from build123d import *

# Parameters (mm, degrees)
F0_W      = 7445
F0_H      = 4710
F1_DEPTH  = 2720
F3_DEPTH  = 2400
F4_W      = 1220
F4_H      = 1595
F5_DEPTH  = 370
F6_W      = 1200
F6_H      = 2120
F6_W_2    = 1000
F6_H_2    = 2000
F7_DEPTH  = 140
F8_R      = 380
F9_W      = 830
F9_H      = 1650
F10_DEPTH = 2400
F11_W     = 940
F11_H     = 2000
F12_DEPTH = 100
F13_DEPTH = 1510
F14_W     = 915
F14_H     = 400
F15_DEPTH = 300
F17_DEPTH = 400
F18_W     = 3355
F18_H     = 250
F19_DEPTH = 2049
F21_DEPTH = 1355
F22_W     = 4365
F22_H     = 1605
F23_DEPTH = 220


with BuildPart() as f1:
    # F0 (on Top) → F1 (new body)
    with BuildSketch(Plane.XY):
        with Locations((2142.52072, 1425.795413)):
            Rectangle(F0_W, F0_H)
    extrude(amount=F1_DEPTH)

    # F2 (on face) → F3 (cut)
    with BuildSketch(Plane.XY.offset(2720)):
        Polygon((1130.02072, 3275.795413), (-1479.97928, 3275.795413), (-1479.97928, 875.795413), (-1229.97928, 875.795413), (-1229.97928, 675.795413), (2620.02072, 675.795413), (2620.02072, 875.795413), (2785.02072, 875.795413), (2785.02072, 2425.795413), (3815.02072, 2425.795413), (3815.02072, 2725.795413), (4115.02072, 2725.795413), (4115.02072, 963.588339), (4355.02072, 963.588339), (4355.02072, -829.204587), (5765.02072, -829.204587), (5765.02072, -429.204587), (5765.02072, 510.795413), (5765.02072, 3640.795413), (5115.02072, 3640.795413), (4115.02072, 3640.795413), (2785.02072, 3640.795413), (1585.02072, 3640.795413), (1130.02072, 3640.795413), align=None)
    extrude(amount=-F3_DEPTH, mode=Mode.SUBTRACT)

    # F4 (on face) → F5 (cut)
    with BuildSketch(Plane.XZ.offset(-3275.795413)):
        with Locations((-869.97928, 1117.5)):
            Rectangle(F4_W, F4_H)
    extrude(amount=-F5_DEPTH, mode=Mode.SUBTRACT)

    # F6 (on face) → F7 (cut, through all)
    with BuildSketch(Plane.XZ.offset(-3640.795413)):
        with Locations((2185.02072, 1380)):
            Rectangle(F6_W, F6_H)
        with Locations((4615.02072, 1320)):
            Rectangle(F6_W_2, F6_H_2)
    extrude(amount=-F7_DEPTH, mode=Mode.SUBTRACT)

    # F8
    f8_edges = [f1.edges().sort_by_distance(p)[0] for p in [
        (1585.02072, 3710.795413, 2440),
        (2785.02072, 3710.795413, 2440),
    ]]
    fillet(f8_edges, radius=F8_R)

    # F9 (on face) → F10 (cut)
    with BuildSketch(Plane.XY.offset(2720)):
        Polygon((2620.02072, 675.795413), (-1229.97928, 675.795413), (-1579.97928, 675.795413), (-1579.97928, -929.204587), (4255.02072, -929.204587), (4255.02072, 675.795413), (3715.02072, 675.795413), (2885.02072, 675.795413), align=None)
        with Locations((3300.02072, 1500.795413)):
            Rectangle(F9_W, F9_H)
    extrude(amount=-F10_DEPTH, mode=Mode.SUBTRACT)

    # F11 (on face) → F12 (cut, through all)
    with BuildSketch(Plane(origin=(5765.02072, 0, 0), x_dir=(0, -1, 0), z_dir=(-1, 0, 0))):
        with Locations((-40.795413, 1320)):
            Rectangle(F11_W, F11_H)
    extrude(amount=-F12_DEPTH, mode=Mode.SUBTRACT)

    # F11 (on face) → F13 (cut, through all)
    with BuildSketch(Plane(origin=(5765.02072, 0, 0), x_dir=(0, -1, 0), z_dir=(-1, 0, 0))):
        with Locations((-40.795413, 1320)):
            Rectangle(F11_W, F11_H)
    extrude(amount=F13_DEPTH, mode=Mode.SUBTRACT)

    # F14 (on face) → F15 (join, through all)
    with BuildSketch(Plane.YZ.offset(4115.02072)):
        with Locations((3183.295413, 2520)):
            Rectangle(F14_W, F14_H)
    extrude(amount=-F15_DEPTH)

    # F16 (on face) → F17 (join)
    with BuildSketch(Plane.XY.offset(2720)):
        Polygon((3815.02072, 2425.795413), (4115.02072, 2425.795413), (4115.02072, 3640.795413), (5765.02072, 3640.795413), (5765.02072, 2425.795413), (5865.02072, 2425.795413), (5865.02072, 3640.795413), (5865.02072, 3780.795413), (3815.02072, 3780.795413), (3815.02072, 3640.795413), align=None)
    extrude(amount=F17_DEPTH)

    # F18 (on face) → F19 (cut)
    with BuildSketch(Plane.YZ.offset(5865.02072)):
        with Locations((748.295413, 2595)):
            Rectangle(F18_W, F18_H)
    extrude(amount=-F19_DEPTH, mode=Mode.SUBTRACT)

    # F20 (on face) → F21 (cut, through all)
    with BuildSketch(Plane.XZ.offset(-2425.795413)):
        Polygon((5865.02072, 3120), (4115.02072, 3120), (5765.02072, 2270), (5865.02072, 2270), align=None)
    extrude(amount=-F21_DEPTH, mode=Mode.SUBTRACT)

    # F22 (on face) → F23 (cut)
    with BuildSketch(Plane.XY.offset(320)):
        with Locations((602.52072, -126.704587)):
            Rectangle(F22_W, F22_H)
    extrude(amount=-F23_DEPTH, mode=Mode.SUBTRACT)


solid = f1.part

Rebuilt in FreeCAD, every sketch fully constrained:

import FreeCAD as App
import Part
import Sketcher
from FreeCAD import Vector


def edges_at(feature, points):
    """Names of the edges that pass closest to the given points."""
    edges = feature.Shape.Edges
    near = lambda p: min(range(len(edges)), key=lambda i: edges[i].distToShape(Part.Vertex(*p))[0])
    return sorted({f"Edge{near(p) + 1}" for p in points})


def add_polygon(sketch, points):
    """Adds a closed chain of lines whose ends are joined by coincident constraints."""
    first, n = sketch.GeometryCount, len(points)
    for a, b in zip(points, points[1:] + points[:1]):
        sketch.addGeometry(Part.LineSegment(App.Vector(*a, 0), App.Vector(*b, 0)), False)
    for i in range(n):
        sketch.addConstraint(Sketcher.Constraint("Coincident", first + i, 2, first + (i + 1) % n, 1))

doc = App.newDocument("Part")
params = doc.addObject("Spreadsheet::Sheet", "Params")
for row, (alias, value) in enumerate([
    ("sketch1_width", "7445 mm"),
    ("sketch1_height", "4710 mm"),
    ("pad1_length", "2720 mm"),
    ("sketch2_width", "2610 mm"),
    ("sketch2_width2", "250 mm"),
    ("sketch2_width3", "3850 mm"),
    ("sketch2_width4", "165 mm"),
    ("sketch2_width5", "1030 mm"),
    ("pocket1_length", "2400 mm"),
    ("sketch3_width", "1220 mm"),
    ("sketch3_height", "1595 mm"),
    ("pocket2_length", "370 mm"),
    ("sketch4_width", "1200 mm"),
    ("sketch4_width2", "1000 mm"),
    ("sketch4_height", "2120 mm"),
    ("sketch4_height2", "2000 mm"),
    ("fillet_radius", "380 mm"),
    ("sketch5_width", "5835 mm"),
    ("sketch5_width2", "540 mm"),
    ("sketch5_width3", "830 mm"),
    ("sketch5_height", "1605 mm"),
    ("sketch5_height2", "1650 mm"),
    ("pocket4_length", "2400 mm"),
    ("sketch6_width", "940 mm"),
    ("sketch6_height", "2000 mm"),
    ("sketch7_width", "940 mm"),
    ("sketch7_height", "2000 mm"),
    ("sketch8_width", "915 mm"),
    ("sketch8_height", "400 mm"),
    ("pad2_length", "300 mm"),
    ("sketch9_width", "300 mm"),
    ("sketch9_width2", "1650 mm"),
    ("sketch9_width3", "100 mm"),
    ("sketch9_height", "1215 mm"),
    ("sketch9_height2", "1355 mm"),
    ("pad3_length", "400 mm"),
    ("sketch10_width", "3355 mm"),
    ("sketch10_height", "250 mm"),
    ("pocket7_length", "2049 mm"),
    ("sketch11_width", "1750 mm"),
    ("sketch11_width2", "100 mm"),
    ("sketch11_height", "850 mm"),
    ("sketch12_width", "4365 mm"),
    ("sketch12_height", "1605 mm"),
    ("pocket9_length", "220 mm"),
], start=1):
    params.set(f"A{row}", alias)
    params.set(f"B{row}", "=" + value)
    params.setAlias(f"B{row}", alias)

body = doc.addObject("PartDesign::Body", "Body")

sketch1 = body.newObject("Sketcher::SketchObject", "Sketch")
sketch1.AttachmentSupport = (doc.getObject("XY_Plane"), [""])
sketch1.MapMode = "FlatFace"
add_polygon(sketch1, [(-1580, 3781), (-1580, -929), (5865, -929), (5865, 3781)])
sketch1.addConstraint([
    Sketcher.Constraint("Vertical", 0),
    Sketcher.Constraint("Horizontal", 1),
    Sketcher.Constraint("Vertical", 2),
    Sketcher.Constraint("Horizontal", 3),
    Sketcher.Constraint("DistanceX", 1, 1, 1, 2, 7445.0),
    Sketcher.Constraint("DistanceY", 0, 2, 0, 1, 4710.0),
    Sketcher.Constraint("DistanceX", 0, 2, -1, 1, 1579.97928),
    Sketcher.Constraint("DistanceY", 0, 2, -1, 1, 929.204587),
])
sketch1.setExpression("Constraints[8]", "Params.sketch1_width")
sketch1.setExpression("Constraints[9]", "Params.sketch1_height")
pad1 = body.newObject("PartDesign::Pad", "Pad")
pad1.Profile = sketch1
pad1.setExpression("Length", "Params.pad1_length")

sketch2 = body.newObject("Sketcher::SketchObject", "Sketch001")
sketch2.AttachmentSupport = (doc.getObject("XY_Plane"), [""])
sketch2.MapMode = "FlatFace"
sketch2.AttachmentOffset = App.Placement(Vector(0, 0, 2720), App.Rotation())
add_polygon(sketch2, [(1130, 3276), (-1480, 3276), (-1480, 876), (-1230, 876), (-1230, 676), (2620, 676), (2620, 876), (2785, 876), (2785, 2426), (3815, 2426), (3815, 2726), (4115, 2726), (4115, 964), (4355, 964), (4355, -829), (5765, -829), (5765, 3641), (1130, 3641)])
sketch2.addConstraint([
    Sketcher.Constraint("Horizontal", 0),
    Sketcher.Constraint("Vertical", 1),
    Sketcher.Constraint("Horizontal", 2),
    Sketcher.Constraint("Vertical", 3),
    Sketcher.Constraint("Horizontal", 4),
    Sketcher.Constraint("Vertical", 5),
    Sketcher.Constraint("Horizontal", 6),
    Sketcher.Constraint("Vertical", 7),
    Sketcher.Constraint("Horizontal", 8),
    Sketcher.Constraint("Vertical", 9),
    Sketcher.Constraint("Horizontal", 10),
    Sketcher.Constraint("Vertical", 11),
    Sketcher.Constraint("Horizontal", 12),
    Sketcher.Constraint("Vertical", 13),
    Sketcher.Constraint("Horizontal", 14),
    Sketcher.Constraint("Vertical", 15),
    Sketcher.Constraint("Horizontal", 16),
    Sketcher.Constraint("Vertical", 17),
    Sketcher.Constraint("Horizontal", 2, 2, 5, 2),
    Sketcher.Constraint("Equal", 10, 9),
    Sketcher.Constraint("DistanceX", 0, 2, 0, 1, 2610.0),
    Sketcher.Constraint("DistanceX", 2, 1, 2, 2, 250.0),
    Sketcher.Constraint("DistanceX", 4, 1, 4, 2, 3850.0),
    Sketcher.Constraint("DistanceX", 6, 1, 6, 2, 165.0),
    Sketcher.Constraint("DistanceX", 8, 1, 8, 2, 1030.0),
    Sketcher.Constraint("DistanceX", 10, 1, 10, 2, 300.0),
    Sketcher.Constraint("DistanceX", 12, 1, 12, 2, 240.0),
    Sketcher.Constraint("DistanceX", 14, 1, 14, 2, 1410.0),
    Sketcher.Constraint("DistanceY", 1, 2, 1, 1, 2400.0),
    Sketcher.Constraint("DistanceY", 3, 2, 3, 1, 200.0),
    Sketcher.Constraint("DistanceY", 7, 1, 7, 2, 1550.0),
    Sketcher.Constraint("DistanceY", 15, 1, 15, 2, 4470.0),
    Sketcher.Constraint("DistanceY", 17, 2, 17, 1, 365.0),
    Sketcher.Constraint("DistanceY", 11, 2, 11, 1, 1762.207074),
    Sketcher.Constraint("DistanceX", 0, 2, -1, 1, 1479.97928),
    Sketcher.Constraint("DistanceY", -1, 1, 11, 2, 963.588339),
])
sketch2.setExpression("Constraints[38]", "Params.sketch2_width")
sketch2.setExpression("Constraints[39]", "Params.sketch2_width2")
sketch2.setExpression("Constraints[40]", "Params.sketch2_width3")
sketch2.setExpression("Constraints[41]", "Params.sketch2_width4")
sketch2.setExpression("Constraints[42]", "Params.sketch2_width5")
pocket1 = body.newObject("PartDesign::Pocket", "Pocket")
pocket1.Profile = sketch2
pocket1.setExpression("Length", "Params.pocket1_length")

sketch3 = body.newObject("Sketcher::SketchObject", "Sketch002")
sketch3.AttachmentSupport = (doc.getObject("XZ_Plane"), [""])
sketch3.MapMode = "FlatFace"
sketch3.AttachmentOffset = App.Placement(Vector(0, 0, -3275.795413), App.Rotation())
add_polygon(sketch3, [(-1480, 1915), (-1480, 320), (-260, 320), (-260, 1915)])
sketch3.addConstraint([
    Sketcher.Constraint("Vertical", 0),
    Sketcher.Constraint("Horizontal", 1),
    Sketcher.Constraint("Vertical", 2),
    Sketcher.Constraint("Horizontal", 3),
    Sketcher.Constraint("DistanceX", 1, 1, 1, 2, 1220.0),
    Sketcher.Constraint("DistanceY", 0, 2, 0, 1, 1595.0),
    Sketcher.Constraint("DistanceY", -1, 1, 0, 2, 320.0),
    Sketcher.Constraint("DistanceX", 0, 2, -1, 1, 1479.97928),
])
sketch3.setExpression("Constraints[8]", "Params.sketch3_width")
sketch3.setExpression("Constraints[9]", "Params.sketch3_height")
pocket2 = body.newObject("PartDesign::Pocket", "Pocket001")
pocket2.Profile = sketch3
pocket2.setExpression("Length", "Params.pocket2_length")

sketch4 = body.newObject("Sketcher::SketchObject", "Sketch003")
sketch4.AttachmentSupport = (doc.getObject("XZ_Plane"), [""])
sketch4.MapMode = "FlatFace"
sketch4.AttachmentOffset = App.Placement(Vector(0, 0, -3640.795413), App.Rotation())
add_polygon(sketch4, [(1585, 2440), (1585, 320), (2785, 320), (2785, 2440)])
add_polygon(sketch4, [(4115, 2320), (4115, 320), (5115, 320), (5115, 2320)])
sketch4.addConstraint([
    Sketcher.Constraint("Vertical", 0),
    Sketcher.Constraint("Horizontal", 1),
    Sketcher.Constraint("Vertical", 2),
    Sketcher.Constraint("Horizontal", 3),
    Sketcher.Constraint("Vertical", 4),
    Sketcher.Constraint("Horizontal", 5),
    Sketcher.Constraint("Vertical", 6),
    Sketcher.Constraint("Horizontal", 7),
    Sketcher.Constraint("Horizontal", 1, 2, 4, 2),
    Sketcher.Constraint("DistanceX", 1, 1, 1, 2, 1200.0),
    Sketcher.Constraint("DistanceX", 5, 1, 5, 2, 1000.0),
    Sketcher.Constraint("DistanceY", 0, 2, 0, 1, 2120.0),
    Sketcher.Constraint("DistanceY", 4, 2, 4, 1, 2000.0),
    Sketcher.Constraint("DistanceY", -1, 1, 0, 2, 320.0),
    Sketcher.Constraint("DistanceX", 1, 2, 4, 2, 1330.0),
    Sketcher.Constraint("DistanceX", -1, 1, 0, 2, 1585.02072),
])
sketch4.setExpression("Constraints[17]", "Params.sketch4_width")
sketch4.setExpression("Constraints[18]", "Params.sketch4_width2")
sketch4.setExpression("Constraints[19]", "Params.sketch4_height")
sketch4.setExpression("Constraints[20]", "Params.sketch4_height2")
pocket3 = body.newObject("PartDesign::Pocket", "Pocket002")
pocket3.Profile = sketch4
pocket3.Type = "ThroughAll"
doc.recompute()

fillet = body.newObject("PartDesign::Fillet", "Fillet")
fillet.Base = (pocket3, edges_at(pocket3, [(1585.021, 3710.795, 2440), (2785.021, 3710.795, 2440)]))
fillet.setExpression("Radius", "Params.fillet_radius")

sketch5 = body.newObject("Sketcher::SketchObject", "Sketch004")
sketch5.AttachmentSupport = (doc.getObject("XY_Plane"), [""])
sketch5.MapMode = "FlatFace"
sketch5.AttachmentOffset = App.Placement(Vector(0, 0, 2720), App.Rotation())
add_polygon(sketch5, [(-1580, 676), (-1580, -929), (4255, -929), (4255, 676), (3715, 676), (3715, 2326), (2885, 2326), (2885, 676)])
sketch5.addConstraint([
    Sketcher.Constraint("Vertical", 0),
    Sketcher.Constraint("Horizontal", 1),
    Sketcher.Constraint("Vertical", 2),
    Sketcher.Constraint("Horizontal", 3),
    Sketcher.Constraint("Vertical", 4),
    Sketcher.Constraint("Horizontal", 5),
    Sketcher.Constraint("Vertical", 6),
    Sketcher.Constraint("Horizontal", 7),
    Sketcher.Constraint("Horizontal", 3, 2, 6, 2),
    Sketcher.Constraint("DistanceX", 1, 1, 1, 2, 5835.0),
    Sketcher.Constraint("DistanceX", 3, 2, 3, 1, 540.0),
    Sketcher.Constraint("DistanceX", 5, 2, 5, 1, 830.0),
    Sketcher.Constraint("DistanceY", 0, 2, 0, 1, 1605.0),
    Sketcher.Constraint("DistanceY", 4, 1, 4, 2, 1650.0),
    Sketcher.Constraint("DistanceX", 0, 2, -1, 1, 1579.97928),
    Sketcher.Constraint("DistanceY", 0, 2, -1, 1, 929.204587),
])
sketch5.setExpression("Constraints[17]", "Params.sketch5_width")
sketch5.setExpression("Constraints[18]", "Params.sketch5_width2")
sketch5.setExpression("Constraints[19]", "Params.sketch5_width3")
sketch5.setExpression("Constraints[20]", "Params.sketch5_height")
sketch5.setExpression("Constraints[21]", "Params.sketch5_height2")
pocket4 = body.newObject("PartDesign::Pocket", "Pocket003")
pocket4.Profile = sketch5
pocket4.setExpression("Length", "Params.pocket4_length")

sketch6 = body.newObject("Sketcher::SketchObject", "Sketch005")
sketch6.AttachmentSupport = (doc.getObject("YZ_Plane"), [""])
sketch6.MapMode = "FlatFace"
sketch6.AttachmentOffset = App.Placement(Vector(0, 0, 5765.02072), App.Rotation())
add_polygon(sketch6, [(511, 2320), (511, 320), (-429, 320), (-429, 2320)])
sketch6.addConstraint([
    Sketcher.Constraint("Vertical", 0),
    Sketcher.Constraint("Horizontal", 1),
    Sketcher.Constraint("Vertical", 2),
    Sketcher.Constraint("Horizontal", 3),
    Sketcher.Constraint("DistanceX", 1, 2, 1, 1, 940.0),
    Sketcher.Constraint("DistanceY", 0, 2, 0, 1, 2000.0),
    Sketcher.Constraint("DistanceY", -1, 1, 0, 2, 320.0),
    Sketcher.Constraint("DistanceX", -1, 1, 0, 2, 510.795413),
])
sketch6.setExpression("Constraints[8]", "Params.sketch6_width")
sketch6.setExpression("Constraints[9]", "Params.sketch6_height")
pocket5 = body.newObject("PartDesign::Pocket", "Pocket004")
pocket5.Profile = sketch6
pocket5.Type = "ThroughAll"
pocket5.Reversed = True

sketch7 = body.newObject("Sketcher::SketchObject", "Sketch006")
sketch7.AttachmentSupport = (doc.getObject("YZ_Plane"), [""])
sketch7.MapMode = "FlatFace"
sketch7.AttachmentOffset = App.Placement(Vector(0, 0, 5765.02072), App.Rotation())
add_polygon(sketch7, [(511, 2320), (511, 320), (-429, 320), (-429, 2320)])
sketch7.addConstraint([
    Sketcher.Constraint("Vertical", 0),
    Sketcher.Constraint("Horizontal", 1),
    Sketcher.Constraint("Vertical", 2),
    Sketcher.Constraint("Horizontal", 3),
    Sketcher.Constraint("DistanceX", 1, 2, 1, 1, 940.0),
    Sketcher.Constraint("DistanceY", 0, 2, 0, 1, 2000.0),
    Sketcher.Constraint("DistanceY", -1, 1, 0, 2, 320.0),
    Sketcher.Constraint("DistanceX", -1, 1, 0, 2, 510.795413),
])
sketch7.setExpression("Constraints[8]", "Params.sketch7_width")
sketch7.setExpression("Constraints[9]", "Params.sketch7_height")
pocket6 = body.newObject("PartDesign::Pocket", "Pocket005")
pocket6.Profile = sketch7
pocket6.Type = "ThroughAll"

sketch8 = body.newObject("Sketcher::SketchObject", "Sketch007")
sketch8.AttachmentSupport = (doc.getObject("YZ_Plane"), [""])
sketch8.MapMode = "FlatFace"
sketch8.AttachmentOffset = App.Placement(Vector(0, 0, 4115.02072), App.Rotation())
add_polygon(sketch8, [(2726, 2720), (2726, 2320), (3641, 2320), (3641, 2720)])
sketch8.addConstraint([
    Sketcher.Constraint("Vertical", 0),
    Sketcher.Constraint("Horizontal", 1),
    Sketcher.Constraint("Vertical", 2),
    Sketcher.Constraint("Horizontal", 3),
    Sketcher.Constraint("DistanceX", 1, 1, 1, 2, 915.0),
    Sketcher.Constraint("DistanceY", 0, 2, 0, 1, 400.0),
    Sketcher.Constraint("DistanceY", -1, 1, 0, 2, 2320.0),
    Sketcher.Constraint("DistanceX", -1, 1, 0, 2, 2725.795413),
])
sketch8.setExpression("Constraints[8]", "Params.sketch8_width")
sketch8.setExpression("Constraints[9]", "Params.sketch8_height")
pad2 = body.newObject("PartDesign::Pad", "Pad001")
pad2.Profile = sketch8
pad2.setExpression("Length", "Params.pad2_length")
pad2.Reversed = True

sketch9 = body.newObject("Sketcher::SketchObject", "Sketch008")
sketch9.AttachmentSupport = (doc.getObject("XY_Plane"), [""])
sketch9.MapMode = "FlatFace"
sketch9.AttachmentOffset = App.Placement(Vector(0, 0, 2720), App.Rotation())
add_polygon(sketch9, [(3815, 2426), (4115, 2426), (4115, 3641), (5765, 3641), (5765, 2426), (5865, 2426), (5865, 3781), (3815, 3781)])
sketch9.addConstraint([
    Sketcher.Constraint("Horizontal", 0),
    Sketcher.Constraint("Vertical", 1),
    Sketcher.Constraint("Horizontal", 2),
    Sketcher.Constraint("Vertical", 3),
    Sketcher.Constraint("Horizontal", 4),
    Sketcher.Constraint("Vertical", 5),
    Sketcher.Constraint("Horizontal", 6),
    Sketcher.Constraint("Vertical", 7),
    Sketcher.Constraint("Horizontal", 0, 2, 3, 2),
    Sketcher.Constraint("DistanceX", 0, 1, 0, 2, 300.0),
    Sketcher.Constraint("DistanceX", 2, 1, 2, 2, 1650.0),
    Sketcher.Constraint("DistanceX", 4, 1, 4, 2, 100.0),
    Sketcher.Constraint("DistanceY", 1, 1, 1, 2, 1215.0),
    Sketcher.Constraint("DistanceY", 5, 1, 5, 2, 1355.0),
    Sketcher.Constraint("DistanceX", -1, 1, 0, 2, 4115.02072),
    Sketcher.Constraint("DistanceY", -1, 1, 0, 2, 2425.795413),
])
sketch9.setExpression("Constraints[17]", "Params.sketch9_width")
sketch9.setExpression("Constraints[18]", "Params.sketch9_width2")
sketch9.setExpression("Constraints[19]", "Params.sketch9_width3")
sketch9.setExpression("Constraints[20]", "Params.sketch9_height")
sketch9.setExpression("Constraints[21]", "Params.sketch9_height2")
pad3 = body.newObject("PartDesign::Pad", "Pad002")
pad3.Profile = sketch9
pad3.setExpression("Length", "Params.pad3_length")

sketch10 = body.newObject("Sketcher::SketchObject", "Sketch009")
sketch10.AttachmentSupport = (doc.getObject("YZ_Plane"), [""])
sketch10.MapMode = "FlatFace"
sketch10.AttachmentOffset = App.Placement(Vector(0, 0, 5865.02072), App.Rotation())
add_polygon(sketch10, [(-929, 2720), (-929, 2470), (2426, 2470), (2426, 2720)])
sketch10.addConstraint([
    Sketcher.Constraint("Vertical", 0),
    Sketcher.Constraint("Horizontal", 1),
    Sketcher.Constraint("Vertical", 2),
    Sketcher.Constraint("Horizontal", 3),
    Sketcher.Constraint("DistanceX", 1, 1, 1, 2, 3355.0),
    Sketcher.Constraint("DistanceY", 0, 2, 0, 1, 250.0),
    Sketcher.Constraint("DistanceY", -1, 1, 0, 2, 2470.0),
    Sketcher.Constraint("DistanceX", 0, 2, -1, 1, 929.204587),
])
sketch10.setExpression("Constraints[8]", "Params.sketch10_width")
sketch10.setExpression("Constraints[9]", "Params.sketch10_height")
pocket7 = body.newObject("PartDesign::Pocket", "Pocket006")
pocket7.Profile = sketch10
pocket7.setExpression("Length", "Params.pocket7_length")

sketch11 = body.newObject("Sketcher::SketchObject", "Sketch010")
sketch11.AttachmentSupport = (doc.getObject("XZ_Plane"), [""])
sketch11.MapMode = "FlatFace"
sketch11.AttachmentOffset = App.Placement(Vector(0, 0, -2425.795413), App.Rotation())
add_polygon(sketch11, [(5865, 3120), (4115, 3120), (5765, 2270), (5865, 2270)])
sketch11.addConstraint([
    Sketcher.Constraint("Horizontal", 0),
    Sketcher.Constraint("Horizontal", 2),
    Sketcher.Constraint("Vertical", 3),
    Sketcher.Constraint("DistanceX", 0, 2, 0, 1, 1750.0),
    Sketcher.Constraint("DistanceX", 2, 1, 2, 2, 100.0),
    Sketcher.Constraint("DistanceY", 3, 1, 3, 2, 850.0),
    Sketcher.Constraint("DistanceY", -1, 1, 0, 2, 3120.0),
    Sketcher.Constraint("DistanceX", -1, 1, 0, 2, 4115.02072),
])
sketch11.setExpression("Constraints[7]", "Params.sketch11_width")
sketch11.setExpression("Constraints[8]", "Params.sketch11_width2")
sketch11.setExpression("Constraints[9]", "Params.sketch11_height")
pocket8 = body.newObject("PartDesign::Pocket", "Pocket007")
pocket8.Profile = sketch11
pocket8.Type = "ThroughAll"

sketch12 = body.newObject("Sketcher::SketchObject", "Sketch011")
sketch12.AttachmentSupport = (doc.getObject("XY_Plane"), [""])
sketch12.MapMode = "FlatFace"
sketch12.AttachmentOffset = App.Placement(Vector(0, 0, 320), App.Rotation())
add_polygon(sketch12, [(-1580, 676), (-1580, -929), (2785, -929), (2785, 676)])
sketch12.addConstraint([
    Sketcher.Constraint("Vertical", 0),
    Sketcher.Constraint("Horizontal", 1),
    Sketcher.Constraint("Vertical", 2),
    Sketcher.Constraint("Horizontal", 3),
    Sketcher.Constraint("DistanceX", 1, 1, 1, 2, 4365.0),
    Sketcher.Constraint("DistanceY", 0, 2, 0, 1, 1605.0),
    Sketcher.Constraint("DistanceX", 0, 2, -1, 1, 1579.97928),
    Sketcher.Constraint("DistanceY", 0, 2, -1, 1, 929.204587),
])
sketch12.setExpression("Constraints[8]", "Params.sketch12_width")
sketch12.setExpression("Constraints[9]", "Params.sketch12_height")
pocket9 = body.newObject("PartDesign::Pocket", "Pocket008")
pocket9.Profile = sketch12
pocket9.setExpression("Length", "Params.pocket9_length")

doc.recompute()
